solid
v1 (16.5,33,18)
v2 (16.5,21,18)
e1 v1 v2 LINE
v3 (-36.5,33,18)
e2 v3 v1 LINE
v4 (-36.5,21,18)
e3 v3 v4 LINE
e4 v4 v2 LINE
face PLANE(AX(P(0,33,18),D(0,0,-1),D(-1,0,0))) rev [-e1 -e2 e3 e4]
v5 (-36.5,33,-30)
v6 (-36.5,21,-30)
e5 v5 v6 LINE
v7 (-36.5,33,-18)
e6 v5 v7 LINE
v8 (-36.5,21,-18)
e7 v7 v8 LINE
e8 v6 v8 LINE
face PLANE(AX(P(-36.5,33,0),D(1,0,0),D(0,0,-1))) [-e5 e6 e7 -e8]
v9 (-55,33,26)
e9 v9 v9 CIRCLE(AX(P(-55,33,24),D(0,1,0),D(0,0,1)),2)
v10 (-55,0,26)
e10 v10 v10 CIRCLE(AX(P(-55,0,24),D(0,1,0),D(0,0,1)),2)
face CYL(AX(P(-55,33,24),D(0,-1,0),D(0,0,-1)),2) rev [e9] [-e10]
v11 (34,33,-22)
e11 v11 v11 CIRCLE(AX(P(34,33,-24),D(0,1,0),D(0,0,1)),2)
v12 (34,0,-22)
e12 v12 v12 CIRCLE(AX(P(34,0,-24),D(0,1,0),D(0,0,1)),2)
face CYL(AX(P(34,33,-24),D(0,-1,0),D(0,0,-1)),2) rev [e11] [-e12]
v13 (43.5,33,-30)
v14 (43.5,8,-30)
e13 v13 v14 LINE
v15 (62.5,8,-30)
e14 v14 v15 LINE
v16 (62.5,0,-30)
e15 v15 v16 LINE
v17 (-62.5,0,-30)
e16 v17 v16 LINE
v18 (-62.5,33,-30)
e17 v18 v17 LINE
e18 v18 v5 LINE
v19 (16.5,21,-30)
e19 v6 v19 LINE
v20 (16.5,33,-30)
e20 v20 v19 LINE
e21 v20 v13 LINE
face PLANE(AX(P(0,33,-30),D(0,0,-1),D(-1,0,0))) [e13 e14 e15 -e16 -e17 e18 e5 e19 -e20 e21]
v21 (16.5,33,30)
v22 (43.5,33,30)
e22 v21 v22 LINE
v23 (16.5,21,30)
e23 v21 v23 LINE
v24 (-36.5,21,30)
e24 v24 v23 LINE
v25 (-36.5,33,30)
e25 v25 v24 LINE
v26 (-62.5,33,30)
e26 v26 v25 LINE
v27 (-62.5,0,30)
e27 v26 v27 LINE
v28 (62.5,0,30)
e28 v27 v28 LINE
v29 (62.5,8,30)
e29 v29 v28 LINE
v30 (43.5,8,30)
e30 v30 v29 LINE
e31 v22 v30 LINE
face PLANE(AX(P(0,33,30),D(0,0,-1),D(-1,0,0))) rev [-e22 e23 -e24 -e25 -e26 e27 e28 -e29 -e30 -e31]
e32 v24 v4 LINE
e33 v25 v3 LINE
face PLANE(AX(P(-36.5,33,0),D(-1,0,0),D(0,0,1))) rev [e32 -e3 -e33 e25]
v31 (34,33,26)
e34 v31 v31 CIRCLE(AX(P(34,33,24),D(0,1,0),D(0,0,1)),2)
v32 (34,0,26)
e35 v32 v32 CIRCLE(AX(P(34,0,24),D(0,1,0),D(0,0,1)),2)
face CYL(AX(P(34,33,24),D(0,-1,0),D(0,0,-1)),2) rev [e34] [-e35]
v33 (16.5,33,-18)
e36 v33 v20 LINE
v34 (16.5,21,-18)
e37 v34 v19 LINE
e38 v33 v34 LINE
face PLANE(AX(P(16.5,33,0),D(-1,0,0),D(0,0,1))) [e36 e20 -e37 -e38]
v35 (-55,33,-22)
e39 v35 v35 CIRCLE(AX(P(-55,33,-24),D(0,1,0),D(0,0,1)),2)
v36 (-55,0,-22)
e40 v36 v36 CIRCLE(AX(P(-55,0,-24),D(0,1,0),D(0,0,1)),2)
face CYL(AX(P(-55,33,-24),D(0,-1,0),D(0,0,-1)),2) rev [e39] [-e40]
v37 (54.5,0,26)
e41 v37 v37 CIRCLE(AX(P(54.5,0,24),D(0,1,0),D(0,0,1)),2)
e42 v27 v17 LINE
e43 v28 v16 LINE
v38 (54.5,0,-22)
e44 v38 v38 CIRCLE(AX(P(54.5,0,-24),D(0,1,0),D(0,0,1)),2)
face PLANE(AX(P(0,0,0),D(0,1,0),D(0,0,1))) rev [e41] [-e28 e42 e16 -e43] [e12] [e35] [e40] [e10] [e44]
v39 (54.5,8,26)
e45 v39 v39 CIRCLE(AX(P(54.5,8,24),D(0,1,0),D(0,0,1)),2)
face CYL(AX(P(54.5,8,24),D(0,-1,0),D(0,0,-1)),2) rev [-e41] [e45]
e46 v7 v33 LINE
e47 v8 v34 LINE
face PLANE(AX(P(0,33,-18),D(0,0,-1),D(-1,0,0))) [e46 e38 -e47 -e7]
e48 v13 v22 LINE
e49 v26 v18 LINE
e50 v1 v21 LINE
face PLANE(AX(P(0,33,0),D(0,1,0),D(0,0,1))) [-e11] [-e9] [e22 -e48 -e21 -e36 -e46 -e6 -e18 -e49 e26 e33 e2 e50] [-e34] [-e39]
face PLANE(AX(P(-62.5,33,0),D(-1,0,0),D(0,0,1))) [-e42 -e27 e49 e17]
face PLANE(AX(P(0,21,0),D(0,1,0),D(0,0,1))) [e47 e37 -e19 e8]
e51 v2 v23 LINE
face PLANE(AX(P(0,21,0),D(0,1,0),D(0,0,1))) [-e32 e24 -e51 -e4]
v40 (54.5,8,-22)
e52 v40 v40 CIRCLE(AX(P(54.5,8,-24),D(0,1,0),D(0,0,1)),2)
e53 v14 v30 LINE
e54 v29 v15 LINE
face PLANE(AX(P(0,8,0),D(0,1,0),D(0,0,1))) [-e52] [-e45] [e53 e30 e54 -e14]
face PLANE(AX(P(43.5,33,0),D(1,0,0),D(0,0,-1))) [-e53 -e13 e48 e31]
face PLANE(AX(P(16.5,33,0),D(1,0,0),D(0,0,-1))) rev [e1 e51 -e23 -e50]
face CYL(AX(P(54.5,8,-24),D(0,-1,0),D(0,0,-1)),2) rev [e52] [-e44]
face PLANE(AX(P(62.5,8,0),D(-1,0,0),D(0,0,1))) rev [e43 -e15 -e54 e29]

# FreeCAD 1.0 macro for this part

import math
import FreeCAD as App
import Part
import Sketcher


def add_polygon(sketch, points):
    """Adds a closed chain of lines whose ends are joined by coincident constraints."""
    first, n = sketch.GeometryCount, len(points)
    for a, b in zip(points, points[1:] + points[:1]):
        sketch.addGeometry(Part.LineSegment(App.Vector(*a, 0), App.Vector(*b, 0)), False)
    for i in range(n):
        sketch.addConstraint(Sketcher.Constraint("Coincident", first + i, 2, first + (i + 1) % n, 1))

doc = App.newDocument("Part")
params = doc.addObject("Spreadsheet::Sheet", "Params")
for row, (alias, value) in enumerate([
    ("sketch1_diameter", "4 mm"),
    ("sketch1_width", "27 mm"),
    ("sketch1_width2", "53 mm"),
    ("sketch1_width3", "26 mm"),
    ("sketch1_height", "60 mm"),
    ("pad1_length", "33 mm"),
    ("sketch2_width", "53 mm"),
    ("sketch2_height", "12 mm"),
    ("pad2_length", "21 mm"),
    ("sketch3_radius", "2 mm"),
    ("sketch3_width", "19 mm"),
    ("sketch3_height", "60 mm"),
    ("pad3_length", "8 mm"),
], start=1):
    params.set(f"A{row}", alias)
    params.set(f"B{row}", "=" + value)
    params.setAlias(f"B{row}", alias)

body = doc.addObject("PartDesign::Body", "Body")

# Sketch on XZ plane
sketch1 = body.newObject("Sketcher::SketchObject", "Sketch")
sketch1.AttachmentSupport = (doc.getObject("XZ_Plane"), [""])
sketch1.MapMode = "FlatFace"
add_polygon(sketch1, [(43.5, 30), (43.5, -30), (16.5, -30), (16.5, -18), (-36.5, -18), (-36.5, -30), (-62.5, -30), (-62.5, 30), (-36.5, 30), (-36.5, 18), (16.5, 18), (16.5, 30)])  # lines 0-11
sketch1.addGeometry(Part.Circle(App.Vector(-55, 24, 0), App.Vector(0, 0, 1), 2), False)  # 12
sketch1.addGeometry(Part.Circle(App.Vector(34, 24, 0), App.Vector(0, 0, 1), 2), False)  # 13
sketch1.addGeometry(Part.Circle(App.Vector(-55, -24, 0), App.Vector(0, 0, 1), 2), False)  # 14
sketch1.addGeometry(Part.Circle(App.Vector(34, -24, 0), App.Vector(0, 0, 1), 2), False)  # 15
sketch1.addConstraint([
    Sketcher.Constraint("Vertical", 0),
    Sketcher.Constraint("Horizontal", 1),
    Sketcher.Constraint("Vertical", 2),
    Sketcher.Constraint("Horizontal", 3),
    Sketcher.Constraint("Vertical", 4),
    Sketcher.Constraint("Horizontal", 5),
    Sketcher.Constraint("Vertical", 6),
    Sketcher.Constraint("Horizontal", 7),
    Sketcher.Constraint("Vertical", 8),
    Sketcher.Constraint("Horizontal", 9),
    Sketcher.Constraint("Vertical", 10),
    Sketcher.Constraint("Horizontal", 11),
    Sketcher.Constraint("Equal", 12, 13),
    Sketcher.Constraint("Equal", 13, 14),
    Sketcher.Constraint("Equal", 14, 15),
    Sketcher.Constraint("Symmetric", 12, 3, 14, 3, -1),
    Sketcher.Constraint("Symmetric", 13, 3, 15, 3, -1),
    Sketcher.Constraint("Symmetric", 4, 2, 7, 2, -1),
    Sketcher.Constraint("Symmetric", 2, 2, 9, 2, -1),
    Sketcher.Constraint("Horizontal", 12, 3, 13, 3),
    Sketcher.Constraint("Horizontal", 1, 2, 4, 2),
    Sketcher.Constraint("Horizontal", 7, 2, 10, 2),
    Sketcher.Constraint("Diameter", 12, 4.0),
    Sketcher.Constraint("DistanceX", 1, 2, 1, 1, 27.0),
    Sketcher.Constraint("DistanceX", 3, 2, 3, 1, 53.0),
    Sketcher.Constraint("DistanceX", 5, 2, 5, 1, 26.0),
    Sketcher.Constraint("DistanceY", 0, 2, 0, 1, 60.0),
    Sketcher.Constraint("DistanceY", 2, 1, 2, 2, 12.0),
    Sketcher.Constraint("DistanceX", 12, 3, -1, 1, 55.0),
    Sketcher.Constraint("DistanceY", -1, 1, 12, 3, 24.0),
    Sketcher.Constraint("DistanceX", -1, 1, 13, 3, 34.0),
    Sketcher.Constraint("DistanceX", -1, 1, 0, 2, 43.5),
])
sketch1.setExpression("Constraints[34]", "Params.sketch1_diameter")
sketch1.setExpression("Constraints[35]", "Params.sketch1_width")
sketch1.setExpression("Constraints[36]", "Params.sketch1_width2")
sketch1.setExpression("Constraints[37]", "Params.sketch1_width3")
sketch1.setExpression("Constraints[38]", "Params.sketch1_height")
pad1 = body.newObject("PartDesign::Pad", "Pad")
pad1.Profile = sketch1
pad1.setExpression("Length", "Params.pad1_length")
pad1.Reversed = True

# Sketch on XZ plane
sketch2 = body.newObject("Sketcher::SketchObject", "Sketch001")
sketch2.AttachmentSupport = (doc.getObject("XZ_Plane"), [""])
sketch2.MapMode = "FlatFace"
add_polygon(sketch2, [(-36, 18), (-36, 30), (16, 30), (16, 18)])  # lines 0-3
add_polygon(sketch2, [(-36, -30), (-36, -18), (16, -18), (16, -30)])  # lines 4-7
sketch2.addConstraint([
    Sketcher.Constraint("Vertical", 0),
    Sketcher.Constraint("Horizontal", 1),
    Sketcher.Constraint("Vertical", 2),
    Sketcher.Constraint("Horizontal", 3),
    Sketcher.Constraint("Vertical", 4),
    Sketcher.Constraint("Horizontal", 5),
    Sketcher.Constraint("Vertical", 6),
    Sketcher.Constraint("Horizontal", 7),
    Sketcher.Constraint("Symmetric", 3, 2, 4, 2, -1),
    Sketcher.Constraint("Symmetric", 1, 2, 6, 2, -1),
    Sketcher.Constraint("DistanceX", 1, 1, 1, 2, 53.0),
    Sketcher.Constraint("DistanceY", 0, 1, 0, 2, 12.0),
    Sketcher.Constraint("DistanceY", -1, 1, 0, 2, 30.0),
    Sketcher.Constraint("DistanceX", 0, 2, -1, 1, 36.5),
])
sketch2.setExpression("Constraints[18]", "Params.sketch2_width")
sketch2.setExpression("Constraints[19]", "Params.sketch2_height")
pad2 = body.newObject("PartDesign::Pad", "Pad001")
pad2.Profile = sketch2
pad2.setExpression("Length", "Params.pad2_length")
pad2.Reversed = True

# Sketch on XZ plane
sketch3 = body.newObject("Sketcher::SketchObject", "Sketch002")
sketch3.AttachmentSupport = (doc.getObject("XZ_Plane"), [""])
sketch3.MapMode = "FlatFace"
add_polygon(sketch3, [(43.5, -30), (43.5, 30), (62.5, 30), (62.5, -30)])  # lines 0-3
sketch3.addGeometry(Part.ArcOfCircle(Part.Circle(App.Vector(54.5, 24, 0), App.Vector(0, 0, 1), 2), math.radians(90), math.radians(270)), False)  # 4
sketch3.addGeometry(Part.ArcOfCircle(Part.Circle(App.Vector(54.5, 24, 0), App.Vector(0, 0, 1), 2), math.radians(-90), math.radians(0)), False)  # 5
sketch3.addGeometry(Part.ArcOfCircle(Part.Circle(App.Vector(54.5, 24, 0), App.Vector(0, 0, 1), 2), math.radians(0), math.radians(90)), False)  # 6
sketch3.addGeometry(Part.ArcOfCircle(Part.Circle(App.Vector(54.5, -24, 0), App.Vector(0, 0, 1), 2), math.radians(90), math.radians(270)), False)  # 7
sketch3.addGeometry(Part.ArcOfCircle(Part.Circle(App.Vector(54.5, -24, 0), App.Vector(0, 0, 1), 2), math.radians(-90), math.radians(0)), False)  # 8
sketch3.addGeometry(Part.ArcOfCircle(Part.Circle(App.Vector(54.5, -24, 0), App.Vector(0, 0, 1), 2), math.radians(0), math.radians(90)), False)  # 9
sketch3.addConstraint([
    Sketcher.Constraint("Tangent", 4, 2, 5, 1),
    Sketcher.Constraint("Tangent", 5, 2, 6, 1),
    Sketcher.Constraint("Tangent", 6, 2, 4, 1),
    Sketcher.Constraint("Tangent", 7, 2, 8, 1),
    Sketcher.Constraint("Tangent", 8, 2, 9, 1),
    Sketcher.Constraint("Tangent", 9, 2, 7, 1),
    Sketcher.Constraint("Vertical", 0),
    Sketcher.Constraint("Horizontal", 1),
    Sketcher.Constraint("Vertical", 2),
    Sketcher.Constraint("Horizontal", 3),
    Sketcher.Constraint("Equal", 6, 7),
    Sketcher.Constraint("Symmetric", 4, 3, 7, 3, -1),
    Sketcher.Constraint("Horizontal", 6, 3, 5, 2),
    Sketcher.Constraint("Horizontal", 9, 3, 8, 2),
    Sketcher.Constraint("Vertical", 9, 3, 4, 2),
    Sketcher.Constraint("Vertical", 4, 2, 6, 2),
    Sketcher.Constraint("Vertical", 6, 2, 7, 2),
    Sketcher.Constraint("Vertical", 7, 2, 9, 2),
    Sketcher.Constraint("Radius", 4, 2.0),
    Sketcher.Constraint("DistanceX", 1, 1, 1, 2, 19.0),
    Sketcher.Constraint("DistanceY", 0, 1, 0, 2, 60.0),
    Sketcher.Constraint("DistanceY", -1, 1, 4, 3, 24.0),
    Sketcher.Constraint("DistanceY", -1, 1, 0, 2, 30.0),
    Sketcher.Constraint("DistanceX", 0, 2, 5, 3, 11.0),
    Sketcher.Constraint("DistanceX", -1, 1, 4, 3, 54.5),
])
sketch3.setExpression("Constraints[22]", "Params.sketch3_radius")
sketch3.setExpression("Constraints[23]", "Params.sketch3_width")
sketch3.setExpression("Constraints[24]", "Params.sketch3_height")
pad3 = body.newObject("PartDesign::Pad", "Pad002")
pad3.Profile = sketch3
pad3.setExpression("Length", "Params.pad3_length")
pad3.Reversed = True

doc.recompute()
